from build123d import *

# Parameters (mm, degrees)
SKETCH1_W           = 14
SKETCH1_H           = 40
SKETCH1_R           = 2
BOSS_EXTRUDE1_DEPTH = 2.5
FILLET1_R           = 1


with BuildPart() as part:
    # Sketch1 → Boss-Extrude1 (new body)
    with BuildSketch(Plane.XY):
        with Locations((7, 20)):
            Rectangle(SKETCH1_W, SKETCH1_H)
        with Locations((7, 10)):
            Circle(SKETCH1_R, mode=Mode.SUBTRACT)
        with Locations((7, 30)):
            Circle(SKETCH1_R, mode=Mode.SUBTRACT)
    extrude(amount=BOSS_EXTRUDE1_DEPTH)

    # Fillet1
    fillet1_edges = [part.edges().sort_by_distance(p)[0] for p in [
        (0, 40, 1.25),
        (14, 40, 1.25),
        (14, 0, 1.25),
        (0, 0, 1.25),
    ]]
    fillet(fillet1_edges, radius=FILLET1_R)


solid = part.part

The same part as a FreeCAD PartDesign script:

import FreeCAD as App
import Part
import Sketcher
from FreeCAD import Vector
Q = App.Units.Quantity


def edges_at(feature, points):
    """Names of the edges that pass closest to the given points."""
    edges = feature.Shape.Edges
    near = lambda p: min(range(len(edges)), key=lambda i: edges[i].distToShape(Part.Vertex(*p))[0])
    return sorted({f"Edge{near(p) + 1}" for p in points})


def add_polygon(sketch, points):
    """Adds a closed chain of lines whose ends are joined by coincident constraints."""
    first, n = sketch.GeometryCount, len(points)
    for a, b in zip(points, points[1:] + points[:1]):
        sketch.addGeometry(Part.LineSegment(App.Vector(*a, 0), App.Vector(*b, 0)), False)
    for i in range(n):
        sketch.addConstraint(Sketcher.Constraint("Coincident", first + i, 2, first + (i + 1) % n, 1))

doc = App.newDocument("Part")
body = doc.addObject("PartDesign::Body", "Body")

# Sketch on XY plane
sketch1 = body.newObject("Sketcher::SketchObject", "Sketch")
sketch1.AttachmentSupport = (doc.getObject("XY_Plane"), [""])
sketch1.MapMode = "FlatFace"
add_polygon(sketch1, [(0, 40), (0, 0), (14, 0), (14, 40)])  # lines 0-3
sketch1.addGeometry(Part.Circle(Vector(7, 10, 0), Vector(0, 0, 1), 2), False)  # 4
sketch1.addGeometry(Part.Circle(Vector(7, 30, 0), Vector(0, 0, 1), 2), False)  # 5
sketch1.addConstraint(Sketcher.Constraint("Vertical", 0))
sketch1.addConstraint(Sketcher.Constraint("Horizontal", 1))
sketch1.addConstraint(Sketcher.Constraint("Vertical", 2))
sketch1.addConstraint(Sketcher.Constraint("Horizontal", 3))
sketch1.addConstraint(Sketcher.Constraint("Coincident", 0, 2, -1, 1))
sketch1.addConstraint(Sketcher.Constraint("Equal", 4, 5))
sketch1.addConstraint(Sketcher.Constraint("Vertical", 4, 3, 5, 3))
sketch1.addConstraint(Sketcher.Constraint("Diameter", 4, Q("4 mm")))
sketch1.addConstraint(Sketcher.Constraint("DistanceX", 1, 1, 1, 2, Q("14 mm")))
sketch1.addConstraint(Sketcher.Constraint("DistanceY", 0, 2, 0, 1, Q("40 mm")))
sketch1.addConstraint(Sketcher.Constraint("DistanceX", -1, 1, 4, 3, Q("7 mm")))
sketch1.addConstraint(Sketcher.Constraint("DistanceY", -1, 1, 4, 3, Q("10 mm")))
sketch1.addConstraint(Sketcher.Constraint("DistanceY", -1, 1, 5, 3, Q("30 mm")))
pad1 = body.newObject("PartDesign::Pad", "Pad")
pad1.Profile = sketch1
pad1.Length = 2.5
doc.recompute()

fillet = body.newObject("PartDesign::Fillet", "Fillet")
fillet.Base = (pad1, edges_at(pad1, [
    (0, 40, 1.25),
    (14, 40, 1.25),
    (14, 0, 1.25),
    (0, 0, 1.25),
]))
fillet.Radius = 1

doc.recompute()
